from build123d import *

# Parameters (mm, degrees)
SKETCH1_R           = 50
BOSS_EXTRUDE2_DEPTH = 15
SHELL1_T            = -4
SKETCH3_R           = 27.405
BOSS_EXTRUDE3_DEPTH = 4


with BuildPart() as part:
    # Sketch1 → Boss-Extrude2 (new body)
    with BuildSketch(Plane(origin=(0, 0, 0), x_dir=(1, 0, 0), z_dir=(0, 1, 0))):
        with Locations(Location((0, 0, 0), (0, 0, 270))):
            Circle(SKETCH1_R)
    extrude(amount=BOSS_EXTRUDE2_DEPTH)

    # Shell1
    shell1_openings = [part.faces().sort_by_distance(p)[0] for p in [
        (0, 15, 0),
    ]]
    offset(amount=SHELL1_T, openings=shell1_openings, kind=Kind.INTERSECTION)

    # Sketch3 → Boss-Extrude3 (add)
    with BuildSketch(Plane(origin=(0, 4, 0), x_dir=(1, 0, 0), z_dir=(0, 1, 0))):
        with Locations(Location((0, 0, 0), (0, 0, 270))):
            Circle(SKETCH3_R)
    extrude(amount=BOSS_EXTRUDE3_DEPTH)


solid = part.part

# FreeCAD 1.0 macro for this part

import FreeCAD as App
import Part
import Sketcher


def faces_at(feature, points):
    """Names of the faces that lie closest to the given points."""
    faces = feature.Shape.Faces
    near = lambda p: min(range(len(faces)), key=lambda i: faces[i].distToShape(Part.Vertex(*p))[0])
    return sorted({f"Face{near(p) + 1}" for p in points})

doc = App.newDocument("Part")
body = doc.addObject("PartDesign::Body", "Body")

sketch1 = body.newObject("Sketcher::SketchObject", "Sketch")
sketch1.AttachmentSupport = (doc.getObject("XZ_Plane"), [""])
sketch1.MapMode = "FlatFace"
sketch1.addGeometry(Part.Circle(App.Vector(0, 0, 0), App.Vector(0, 0, 1), 50), False)
sketch1.addConstraint([
    Sketcher.Constraint("Coincident", 0, 3, -1, 1),
    Sketcher.Constraint("Diameter", 0, 100.0),
])
pad1 = body.newObject("PartDesign::Pad", "Pad")
pad1.Profile = sketch1
pad1.Length = 15
pad1.Reversed = True
doc.recompute()

thickness = body.newObject("PartDesign::Thickness", "Thickness")
thickness.Base = (pad1, faces_at(pad1, [(0, 15, 0)]))
thickness.Value = 4
thickness.Reversed = True
thickness.Join = "Intersection"

sketch2 = body.newObject("Sketcher::SketchObject", "Sketch001")
sketch2.AttachmentSupport = (doc.getObject("XZ_Plane"), [""])
sketch2.MapMode = "FlatFace"
sketch2.AttachmentOffset = App.Placement(App.Vector(0, 0, -4), App.Rotation())
sketch2.addGeometry(Part.Circle(App.Vector(0, 0, 0), App.Vector(0, 0, 1), 27), False)
sketch2.addConstraint([
    Sketcher.Constraint("Coincident", 0, 3, -1, 1),
    Sketcher.Constraint("Diameter", 0, 54.81),
])
pad2 = body.newObject("PartDesign::Pad", "Pad001")
pad2.Profile = sketch2
pad2.Length = 4
pad2.Reversed = True

doc.recompute()
